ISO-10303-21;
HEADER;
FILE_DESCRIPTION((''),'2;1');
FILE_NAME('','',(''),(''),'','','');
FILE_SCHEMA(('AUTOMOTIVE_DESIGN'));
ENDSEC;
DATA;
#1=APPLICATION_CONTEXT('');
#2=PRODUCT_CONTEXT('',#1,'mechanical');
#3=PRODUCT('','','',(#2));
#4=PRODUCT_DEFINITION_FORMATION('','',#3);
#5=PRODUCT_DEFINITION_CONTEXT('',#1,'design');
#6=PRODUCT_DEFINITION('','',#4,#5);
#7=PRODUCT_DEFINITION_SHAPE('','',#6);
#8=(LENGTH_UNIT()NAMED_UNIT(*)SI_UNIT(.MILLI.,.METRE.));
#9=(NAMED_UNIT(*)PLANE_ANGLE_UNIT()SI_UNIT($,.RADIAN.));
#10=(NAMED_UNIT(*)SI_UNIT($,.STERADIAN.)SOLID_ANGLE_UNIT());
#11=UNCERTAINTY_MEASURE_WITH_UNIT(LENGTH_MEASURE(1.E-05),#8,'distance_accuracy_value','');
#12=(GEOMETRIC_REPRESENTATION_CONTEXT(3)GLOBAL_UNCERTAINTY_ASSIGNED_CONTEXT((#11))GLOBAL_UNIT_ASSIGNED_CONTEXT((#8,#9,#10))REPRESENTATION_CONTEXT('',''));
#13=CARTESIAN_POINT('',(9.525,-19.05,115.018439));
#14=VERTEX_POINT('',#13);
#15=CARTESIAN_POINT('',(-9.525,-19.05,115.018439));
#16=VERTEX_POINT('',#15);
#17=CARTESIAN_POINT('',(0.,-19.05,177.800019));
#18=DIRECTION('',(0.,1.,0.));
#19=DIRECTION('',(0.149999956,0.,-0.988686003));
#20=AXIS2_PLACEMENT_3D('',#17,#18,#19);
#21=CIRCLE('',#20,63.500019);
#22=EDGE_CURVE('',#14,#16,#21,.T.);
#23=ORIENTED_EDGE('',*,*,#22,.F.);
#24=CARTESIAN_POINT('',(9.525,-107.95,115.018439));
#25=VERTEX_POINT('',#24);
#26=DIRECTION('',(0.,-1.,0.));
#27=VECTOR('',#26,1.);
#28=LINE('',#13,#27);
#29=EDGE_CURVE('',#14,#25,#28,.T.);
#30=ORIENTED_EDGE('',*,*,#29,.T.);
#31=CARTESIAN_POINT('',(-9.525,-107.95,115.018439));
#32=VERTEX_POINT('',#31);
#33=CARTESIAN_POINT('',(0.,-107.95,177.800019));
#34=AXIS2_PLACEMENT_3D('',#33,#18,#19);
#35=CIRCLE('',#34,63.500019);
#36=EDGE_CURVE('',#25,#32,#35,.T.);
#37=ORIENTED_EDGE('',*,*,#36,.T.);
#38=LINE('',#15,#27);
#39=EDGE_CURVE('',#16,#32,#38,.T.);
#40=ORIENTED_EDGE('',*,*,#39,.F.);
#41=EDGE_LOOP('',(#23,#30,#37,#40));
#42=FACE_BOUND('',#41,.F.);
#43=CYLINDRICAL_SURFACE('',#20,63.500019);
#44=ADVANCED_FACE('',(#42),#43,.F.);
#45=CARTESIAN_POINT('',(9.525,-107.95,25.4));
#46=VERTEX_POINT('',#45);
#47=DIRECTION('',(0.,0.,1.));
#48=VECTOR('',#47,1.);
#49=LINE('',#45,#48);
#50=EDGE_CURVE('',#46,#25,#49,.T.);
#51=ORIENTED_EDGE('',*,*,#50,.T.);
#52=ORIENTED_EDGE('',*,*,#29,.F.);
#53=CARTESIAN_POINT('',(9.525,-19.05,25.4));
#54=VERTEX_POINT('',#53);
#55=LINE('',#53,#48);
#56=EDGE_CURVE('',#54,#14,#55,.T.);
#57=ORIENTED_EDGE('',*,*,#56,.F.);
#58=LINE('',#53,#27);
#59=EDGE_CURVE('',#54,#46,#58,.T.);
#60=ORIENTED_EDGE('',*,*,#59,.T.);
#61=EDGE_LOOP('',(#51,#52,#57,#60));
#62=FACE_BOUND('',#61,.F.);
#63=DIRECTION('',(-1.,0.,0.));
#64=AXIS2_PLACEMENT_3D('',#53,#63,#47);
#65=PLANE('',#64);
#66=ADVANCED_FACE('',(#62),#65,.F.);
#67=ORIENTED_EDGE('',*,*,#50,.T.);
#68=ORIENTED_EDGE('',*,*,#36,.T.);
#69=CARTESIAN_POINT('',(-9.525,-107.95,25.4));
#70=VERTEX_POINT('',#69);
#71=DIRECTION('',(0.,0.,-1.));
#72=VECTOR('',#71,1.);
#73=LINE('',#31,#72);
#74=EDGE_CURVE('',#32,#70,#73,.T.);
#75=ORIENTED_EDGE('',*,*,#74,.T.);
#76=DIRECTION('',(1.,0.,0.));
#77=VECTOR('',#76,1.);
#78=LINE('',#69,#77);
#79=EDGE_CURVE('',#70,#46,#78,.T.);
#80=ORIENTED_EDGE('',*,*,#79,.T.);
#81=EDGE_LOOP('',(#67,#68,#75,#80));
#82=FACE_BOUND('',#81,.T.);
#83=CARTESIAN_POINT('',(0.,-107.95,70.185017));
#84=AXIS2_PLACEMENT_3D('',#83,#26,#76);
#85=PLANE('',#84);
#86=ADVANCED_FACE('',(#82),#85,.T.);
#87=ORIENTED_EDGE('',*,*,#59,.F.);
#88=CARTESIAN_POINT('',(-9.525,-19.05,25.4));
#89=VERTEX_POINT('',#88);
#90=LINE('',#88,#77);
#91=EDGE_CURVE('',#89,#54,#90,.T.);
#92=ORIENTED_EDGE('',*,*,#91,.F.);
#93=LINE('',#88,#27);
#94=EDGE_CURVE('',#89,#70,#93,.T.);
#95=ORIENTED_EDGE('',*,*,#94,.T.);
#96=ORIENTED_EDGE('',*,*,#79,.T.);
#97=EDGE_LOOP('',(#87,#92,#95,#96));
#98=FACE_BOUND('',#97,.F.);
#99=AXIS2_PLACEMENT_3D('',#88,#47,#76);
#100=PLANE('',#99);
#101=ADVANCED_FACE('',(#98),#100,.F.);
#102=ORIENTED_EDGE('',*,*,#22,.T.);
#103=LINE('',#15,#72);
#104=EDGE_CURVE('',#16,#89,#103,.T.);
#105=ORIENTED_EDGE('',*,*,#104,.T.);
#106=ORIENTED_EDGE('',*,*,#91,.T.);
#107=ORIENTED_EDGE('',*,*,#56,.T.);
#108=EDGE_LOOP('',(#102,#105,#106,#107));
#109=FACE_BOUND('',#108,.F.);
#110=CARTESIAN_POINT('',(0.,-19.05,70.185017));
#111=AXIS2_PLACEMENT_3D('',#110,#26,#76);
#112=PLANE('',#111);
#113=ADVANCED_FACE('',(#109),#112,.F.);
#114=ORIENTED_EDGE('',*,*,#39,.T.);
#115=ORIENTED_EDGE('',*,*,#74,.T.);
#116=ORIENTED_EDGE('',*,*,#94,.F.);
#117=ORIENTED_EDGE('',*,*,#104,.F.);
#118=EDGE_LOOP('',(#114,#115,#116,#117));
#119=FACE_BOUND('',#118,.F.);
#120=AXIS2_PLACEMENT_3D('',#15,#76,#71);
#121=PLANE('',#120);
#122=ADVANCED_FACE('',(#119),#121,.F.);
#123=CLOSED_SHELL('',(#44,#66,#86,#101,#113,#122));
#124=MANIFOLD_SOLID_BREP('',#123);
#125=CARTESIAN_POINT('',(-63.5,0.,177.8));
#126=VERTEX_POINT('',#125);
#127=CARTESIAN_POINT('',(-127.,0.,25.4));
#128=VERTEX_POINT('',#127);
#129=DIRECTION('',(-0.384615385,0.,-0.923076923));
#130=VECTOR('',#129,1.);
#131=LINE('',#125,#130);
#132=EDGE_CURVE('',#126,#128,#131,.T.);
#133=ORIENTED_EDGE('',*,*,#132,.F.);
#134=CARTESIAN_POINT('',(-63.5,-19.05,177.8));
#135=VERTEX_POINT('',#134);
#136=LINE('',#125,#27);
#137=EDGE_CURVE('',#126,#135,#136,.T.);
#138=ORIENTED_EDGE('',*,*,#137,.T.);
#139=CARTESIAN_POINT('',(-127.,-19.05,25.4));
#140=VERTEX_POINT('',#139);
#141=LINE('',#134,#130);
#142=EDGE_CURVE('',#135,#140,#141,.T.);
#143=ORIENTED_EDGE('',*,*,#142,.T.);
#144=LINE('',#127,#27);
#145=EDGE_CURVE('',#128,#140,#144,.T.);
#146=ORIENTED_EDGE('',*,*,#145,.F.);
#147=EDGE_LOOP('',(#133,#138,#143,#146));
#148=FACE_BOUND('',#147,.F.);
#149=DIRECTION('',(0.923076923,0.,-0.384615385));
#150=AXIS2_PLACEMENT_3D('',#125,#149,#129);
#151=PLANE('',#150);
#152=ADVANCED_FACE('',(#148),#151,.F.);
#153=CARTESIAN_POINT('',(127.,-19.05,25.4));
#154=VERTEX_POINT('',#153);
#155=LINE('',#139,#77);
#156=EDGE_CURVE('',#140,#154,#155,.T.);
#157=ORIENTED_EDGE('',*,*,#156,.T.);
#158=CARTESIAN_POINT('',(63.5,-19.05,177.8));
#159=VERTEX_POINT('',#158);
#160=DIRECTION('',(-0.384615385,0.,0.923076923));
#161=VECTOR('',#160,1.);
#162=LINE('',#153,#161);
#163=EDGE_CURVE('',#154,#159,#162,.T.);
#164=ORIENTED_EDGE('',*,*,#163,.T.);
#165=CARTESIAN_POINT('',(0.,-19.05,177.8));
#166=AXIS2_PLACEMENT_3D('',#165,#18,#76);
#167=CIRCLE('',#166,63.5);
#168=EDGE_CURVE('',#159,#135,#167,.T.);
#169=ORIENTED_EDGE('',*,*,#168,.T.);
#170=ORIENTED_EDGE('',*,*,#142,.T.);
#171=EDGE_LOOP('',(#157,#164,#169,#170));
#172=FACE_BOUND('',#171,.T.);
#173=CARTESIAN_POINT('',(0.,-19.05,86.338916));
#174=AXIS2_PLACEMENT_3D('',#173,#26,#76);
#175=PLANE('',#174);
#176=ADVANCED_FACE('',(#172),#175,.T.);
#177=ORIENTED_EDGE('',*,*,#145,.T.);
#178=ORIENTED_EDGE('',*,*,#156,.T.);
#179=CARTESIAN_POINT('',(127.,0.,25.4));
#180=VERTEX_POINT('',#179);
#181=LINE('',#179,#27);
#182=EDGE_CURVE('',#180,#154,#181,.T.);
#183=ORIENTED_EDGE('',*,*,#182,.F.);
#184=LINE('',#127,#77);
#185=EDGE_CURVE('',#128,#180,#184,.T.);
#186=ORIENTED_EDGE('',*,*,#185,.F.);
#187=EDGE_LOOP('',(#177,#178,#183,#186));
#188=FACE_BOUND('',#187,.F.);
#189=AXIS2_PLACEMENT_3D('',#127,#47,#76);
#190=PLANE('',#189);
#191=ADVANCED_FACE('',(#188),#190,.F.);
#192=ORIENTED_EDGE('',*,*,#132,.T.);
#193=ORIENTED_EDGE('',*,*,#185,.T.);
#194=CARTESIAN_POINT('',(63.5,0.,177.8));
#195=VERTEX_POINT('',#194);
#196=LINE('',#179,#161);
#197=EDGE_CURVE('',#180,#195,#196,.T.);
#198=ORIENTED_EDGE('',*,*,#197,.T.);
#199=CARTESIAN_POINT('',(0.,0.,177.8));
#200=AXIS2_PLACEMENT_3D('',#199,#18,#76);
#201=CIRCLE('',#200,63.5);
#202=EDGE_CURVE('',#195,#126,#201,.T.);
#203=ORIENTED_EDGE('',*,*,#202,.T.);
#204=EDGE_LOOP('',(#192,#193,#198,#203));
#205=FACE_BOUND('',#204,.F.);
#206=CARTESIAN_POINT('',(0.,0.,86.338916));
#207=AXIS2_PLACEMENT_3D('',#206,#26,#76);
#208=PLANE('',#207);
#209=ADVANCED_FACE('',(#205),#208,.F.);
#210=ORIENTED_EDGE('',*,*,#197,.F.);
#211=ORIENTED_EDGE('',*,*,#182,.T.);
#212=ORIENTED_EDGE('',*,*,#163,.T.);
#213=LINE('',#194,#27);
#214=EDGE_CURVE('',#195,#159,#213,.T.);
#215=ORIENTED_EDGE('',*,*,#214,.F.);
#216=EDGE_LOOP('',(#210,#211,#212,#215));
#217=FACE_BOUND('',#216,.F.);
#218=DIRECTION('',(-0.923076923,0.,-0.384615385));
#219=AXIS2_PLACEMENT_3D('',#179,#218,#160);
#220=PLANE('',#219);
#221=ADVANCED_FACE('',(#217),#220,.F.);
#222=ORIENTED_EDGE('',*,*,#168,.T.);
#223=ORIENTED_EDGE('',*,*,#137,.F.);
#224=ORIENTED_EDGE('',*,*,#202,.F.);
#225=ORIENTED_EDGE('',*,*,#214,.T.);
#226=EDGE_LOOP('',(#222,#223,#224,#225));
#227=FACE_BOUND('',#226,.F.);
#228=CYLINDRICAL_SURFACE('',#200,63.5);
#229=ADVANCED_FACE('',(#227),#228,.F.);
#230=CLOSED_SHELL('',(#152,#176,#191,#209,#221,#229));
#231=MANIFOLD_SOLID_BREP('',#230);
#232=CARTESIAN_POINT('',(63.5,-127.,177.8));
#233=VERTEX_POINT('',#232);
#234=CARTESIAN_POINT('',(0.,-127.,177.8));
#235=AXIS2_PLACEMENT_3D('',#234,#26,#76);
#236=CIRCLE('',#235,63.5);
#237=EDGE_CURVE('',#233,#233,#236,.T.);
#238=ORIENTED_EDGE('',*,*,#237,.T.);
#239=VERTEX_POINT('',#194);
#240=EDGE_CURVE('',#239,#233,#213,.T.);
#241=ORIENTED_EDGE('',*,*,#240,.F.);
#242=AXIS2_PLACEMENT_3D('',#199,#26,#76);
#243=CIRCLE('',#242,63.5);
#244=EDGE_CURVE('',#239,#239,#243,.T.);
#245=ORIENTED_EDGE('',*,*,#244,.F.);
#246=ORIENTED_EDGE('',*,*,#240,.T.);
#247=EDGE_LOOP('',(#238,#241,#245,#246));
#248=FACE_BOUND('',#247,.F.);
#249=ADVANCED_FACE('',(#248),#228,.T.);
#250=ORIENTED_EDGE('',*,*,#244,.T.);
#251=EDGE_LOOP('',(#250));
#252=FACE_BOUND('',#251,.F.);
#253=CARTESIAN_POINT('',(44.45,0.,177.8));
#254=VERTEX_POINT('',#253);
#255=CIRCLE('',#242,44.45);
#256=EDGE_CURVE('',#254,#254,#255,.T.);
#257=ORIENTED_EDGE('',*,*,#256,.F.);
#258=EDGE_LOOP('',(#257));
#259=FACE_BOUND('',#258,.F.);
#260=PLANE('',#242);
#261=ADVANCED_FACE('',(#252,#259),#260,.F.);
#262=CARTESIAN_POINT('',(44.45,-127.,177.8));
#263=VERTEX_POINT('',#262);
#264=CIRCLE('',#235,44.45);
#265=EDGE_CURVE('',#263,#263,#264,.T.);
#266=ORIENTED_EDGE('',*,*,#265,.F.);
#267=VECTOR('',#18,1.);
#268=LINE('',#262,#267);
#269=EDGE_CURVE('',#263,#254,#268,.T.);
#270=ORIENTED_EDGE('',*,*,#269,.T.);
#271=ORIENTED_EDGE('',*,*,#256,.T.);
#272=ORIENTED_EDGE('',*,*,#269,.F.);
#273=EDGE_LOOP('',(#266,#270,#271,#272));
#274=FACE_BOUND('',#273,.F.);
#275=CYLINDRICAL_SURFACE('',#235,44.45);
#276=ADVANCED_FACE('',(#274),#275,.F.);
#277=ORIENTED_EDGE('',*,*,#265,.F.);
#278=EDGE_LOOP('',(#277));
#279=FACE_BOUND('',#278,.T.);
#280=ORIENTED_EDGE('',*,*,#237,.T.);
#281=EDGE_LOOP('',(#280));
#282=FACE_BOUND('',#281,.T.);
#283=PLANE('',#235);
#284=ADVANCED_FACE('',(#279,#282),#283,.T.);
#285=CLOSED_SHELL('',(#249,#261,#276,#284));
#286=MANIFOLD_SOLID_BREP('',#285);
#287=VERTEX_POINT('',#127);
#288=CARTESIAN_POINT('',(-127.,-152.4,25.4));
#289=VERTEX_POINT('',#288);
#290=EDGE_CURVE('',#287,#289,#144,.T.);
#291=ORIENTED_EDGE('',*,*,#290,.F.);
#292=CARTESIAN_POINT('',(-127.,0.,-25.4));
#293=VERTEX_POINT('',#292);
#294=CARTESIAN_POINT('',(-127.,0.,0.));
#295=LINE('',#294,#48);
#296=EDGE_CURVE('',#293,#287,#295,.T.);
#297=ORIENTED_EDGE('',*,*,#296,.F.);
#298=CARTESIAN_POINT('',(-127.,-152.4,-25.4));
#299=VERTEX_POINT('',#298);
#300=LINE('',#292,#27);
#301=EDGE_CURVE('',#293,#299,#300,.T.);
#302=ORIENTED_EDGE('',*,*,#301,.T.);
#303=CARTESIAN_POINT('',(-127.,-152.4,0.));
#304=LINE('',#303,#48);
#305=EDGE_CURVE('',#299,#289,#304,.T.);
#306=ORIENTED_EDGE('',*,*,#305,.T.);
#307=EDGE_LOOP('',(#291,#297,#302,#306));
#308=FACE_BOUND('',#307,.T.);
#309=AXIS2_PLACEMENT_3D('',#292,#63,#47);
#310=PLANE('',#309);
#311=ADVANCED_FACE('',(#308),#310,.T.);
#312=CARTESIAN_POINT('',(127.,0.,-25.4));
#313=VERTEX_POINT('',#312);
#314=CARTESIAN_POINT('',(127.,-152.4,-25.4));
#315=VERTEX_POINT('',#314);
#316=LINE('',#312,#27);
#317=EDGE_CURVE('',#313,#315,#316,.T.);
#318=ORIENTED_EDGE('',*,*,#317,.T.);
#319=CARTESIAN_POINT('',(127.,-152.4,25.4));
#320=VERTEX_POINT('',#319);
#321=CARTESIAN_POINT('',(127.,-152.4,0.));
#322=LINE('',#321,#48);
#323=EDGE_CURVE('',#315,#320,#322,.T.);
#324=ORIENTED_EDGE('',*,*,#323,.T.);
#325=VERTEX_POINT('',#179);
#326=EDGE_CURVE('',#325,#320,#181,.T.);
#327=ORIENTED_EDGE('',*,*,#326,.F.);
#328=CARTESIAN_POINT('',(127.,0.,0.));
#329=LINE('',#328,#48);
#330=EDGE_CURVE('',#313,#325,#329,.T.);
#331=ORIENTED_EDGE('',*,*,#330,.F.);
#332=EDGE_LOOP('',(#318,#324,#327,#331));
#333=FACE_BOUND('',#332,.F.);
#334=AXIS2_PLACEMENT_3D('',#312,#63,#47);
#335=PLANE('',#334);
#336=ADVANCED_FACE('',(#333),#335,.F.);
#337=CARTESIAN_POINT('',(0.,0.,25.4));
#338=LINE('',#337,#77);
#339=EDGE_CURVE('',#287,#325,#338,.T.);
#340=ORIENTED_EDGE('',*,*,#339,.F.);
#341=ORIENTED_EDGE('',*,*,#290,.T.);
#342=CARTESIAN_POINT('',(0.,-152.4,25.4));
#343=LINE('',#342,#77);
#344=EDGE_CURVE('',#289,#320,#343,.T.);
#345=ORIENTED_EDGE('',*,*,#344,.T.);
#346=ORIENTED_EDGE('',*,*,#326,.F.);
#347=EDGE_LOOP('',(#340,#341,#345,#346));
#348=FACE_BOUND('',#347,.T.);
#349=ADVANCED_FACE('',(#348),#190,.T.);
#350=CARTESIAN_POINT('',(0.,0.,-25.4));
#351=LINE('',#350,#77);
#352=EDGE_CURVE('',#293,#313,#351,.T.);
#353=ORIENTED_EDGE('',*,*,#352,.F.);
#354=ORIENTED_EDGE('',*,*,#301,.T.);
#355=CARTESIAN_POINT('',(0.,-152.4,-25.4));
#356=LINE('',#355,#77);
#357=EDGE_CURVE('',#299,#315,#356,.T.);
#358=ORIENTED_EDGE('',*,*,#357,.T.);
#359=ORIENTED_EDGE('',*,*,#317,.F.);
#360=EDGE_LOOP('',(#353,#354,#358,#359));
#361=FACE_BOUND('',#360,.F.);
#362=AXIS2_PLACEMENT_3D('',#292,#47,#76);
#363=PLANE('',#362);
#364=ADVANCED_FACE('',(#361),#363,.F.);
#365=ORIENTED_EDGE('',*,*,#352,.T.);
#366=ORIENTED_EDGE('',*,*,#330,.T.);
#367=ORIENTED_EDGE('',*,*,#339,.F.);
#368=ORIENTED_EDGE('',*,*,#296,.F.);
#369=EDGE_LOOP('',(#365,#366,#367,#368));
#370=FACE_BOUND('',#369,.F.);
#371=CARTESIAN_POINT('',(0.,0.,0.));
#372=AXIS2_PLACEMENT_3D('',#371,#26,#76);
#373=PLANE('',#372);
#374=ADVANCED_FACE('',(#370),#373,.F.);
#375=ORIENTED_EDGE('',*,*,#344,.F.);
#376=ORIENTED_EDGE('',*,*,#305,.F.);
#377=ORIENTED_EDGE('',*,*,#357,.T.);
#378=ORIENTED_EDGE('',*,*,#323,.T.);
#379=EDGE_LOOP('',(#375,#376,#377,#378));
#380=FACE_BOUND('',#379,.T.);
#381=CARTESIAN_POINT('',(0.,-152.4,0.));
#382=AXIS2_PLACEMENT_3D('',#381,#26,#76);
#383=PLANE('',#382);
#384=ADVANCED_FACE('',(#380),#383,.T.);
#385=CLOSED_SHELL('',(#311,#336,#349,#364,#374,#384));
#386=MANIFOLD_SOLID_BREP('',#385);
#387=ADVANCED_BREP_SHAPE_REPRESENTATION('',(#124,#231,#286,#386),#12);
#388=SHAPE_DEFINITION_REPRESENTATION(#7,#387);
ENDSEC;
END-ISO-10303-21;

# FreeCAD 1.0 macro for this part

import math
import FreeCAD as App
import Part
import Sketcher

V = App.Vector
Q = App.Units.Quantity

doc = App.newDocument("Part")
body = doc.addObject("PartDesign::Body", "Body")

# Sketch on XZ plane
sketch1 = doc.addObject("Sketcher::SketchObject", "Sketch")
body.addObject(sketch1)
sketch1.AttachmentSupport = (doc.XZ_Plane, [""])
sketch1.MapMode = "FlatFace"
sketch1.addGeometry(Part.LineSegment(V(-127, 25, 0), V(-127, -25, 0)), False)
sketch1.addGeometry(Part.LineSegment(V(-127, -25, 0), V(127, -25, 0)), False)
sketch1.addGeometry(Part.LineSegment(V(127, -25, 0), V(127, 25, 0)), False)
sketch1.addGeometry(Part.LineSegment(V(127, 25, 0), V(-127, 25, 0)), False)
sketch1.addConstraint(Sketcher.Constraint("Coincident", 0, 2, 1, 1))
sketch1.addConstraint(Sketcher.Constraint("Coincident", 1, 2, 2, 1))
sketch1.addConstraint(Sketcher.Constraint("Coincident", 2, 2, 3, 1))
sketch1.addConstraint(Sketcher.Constraint("Coincident", 3, 2, 0, 1))
sketch1.addConstraint(Sketcher.Constraint("Vertical", 0))
sketch1.addConstraint(Sketcher.Constraint("Horizontal", 1))
sketch1.addConstraint(Sketcher.Constraint("Vertical", 2))
sketch1.addConstraint(Sketcher.Constraint("Horizontal", 3))
sketch1.addConstraint(Sketcher.Constraint("Symmetric", 0, 2, 2, 2, -1, 1))
sketch1.addConstraint(Sketcher.Constraint("DistanceX", 1, 1, 1, 2, Q("10 in")))
sketch1.addConstraint(Sketcher.Constraint("DistanceY", 0, 2, 0, 1, Q("2 in")))
pad1 = doc.addObject("PartDesign::Pad", "Pad")
body.addObject(pad1)
pad1.Profile = sketch1
pad1.Length = Q("6 in")
body2 = doc.addObject("PartDesign::Body", "Body001")

# Sketch on XZ plane
sketch2 = doc.addObject("Sketcher::SketchObject", "Sketch001")
body2.addObject(sketch2)
sketch2.AttachmentSupport = (doc.getObject("XZ_Plane001"), [""])
sketch2.MapMode = "FlatFace"
sketch2.addGeometry(Part.Circle(V(0, 178, 0), V(0, 0, 1), 64), False)
sketch2.addConstraint(Sketcher.Constraint("PointOnObject", 0, 3, -2))
sketch2.addConstraint(Sketcher.Constraint("Diameter", 0, Q("5 in")))
sketch2.addConstraint(Sketcher.Constraint("DistanceY", -1, 1, 0, 3, Q("7 in")))
pad2 = doc.addObject("PartDesign::Pad", "Pad001")
body2.addObject(pad2)
pad2.Profile = sketch2
pad2.Length = Q("5 in")

# Sketch on XZ plane
sketch3 = doc.addObject("Sketcher::SketchObject", "Sketch002")
body2.addObject(sketch3)
sketch3.AttachmentSupport = (doc.getObject("XZ_Plane001"), [""])
sketch3.MapMode = "FlatFace"
sketch3.AttachmentOffset = App.Placement(V(0, 0, 5 * 25.4), App.Rotation())
sketch3.addGeometry(Part.Circle(V(0, 178, 0), V(0, 0, 1), 44), False)
sketch3.addConstraint(Sketcher.Constraint("PointOnObject", 0, 3, -2))
sketch3.addConstraint(Sketcher.Constraint("Diameter", 0, Q("3.5 in")))
sketch3.addConstraint(Sketcher.Constraint("DistanceY", -1, 1, 0, 3, Q("7 in")))
pocket1 = doc.addObject("PartDesign::Pocket", "Pocket")
body2.addObject(pocket1)
pocket1.Profile = sketch3
pocket1.Type = "ThroughAll"
body3 = doc.addObject("PartDesign::Body", "Body002")

# Sketch on XZ plane
sketch4 = doc.addObject("Sketcher::SketchObject", "Sketch003")
body3.addObject(sketch4)
sketch4.AttachmentSupport = (doc.getObject("XZ_Plane002"), [""])
sketch4.MapMode = "FlatFace"
sketch4.addGeometry(Part.LineSegment(V(-127, 25, 0), V(127, 25, 0)), False)
sketch4.addGeometry(Part.LineSegment(V(127, 25, 0), V(64, 178, 0)), False)
sketch4.addGeometry(Part.ArcOfCircle(Part.Circle(V(0, 178, 0), V(0, 0, 1), 64), math.radians(180), math.radians(360)), False)
sketch4.addGeometry(Part.LineSegment(V(-64, 178, 0), V(-127, 25, 0)), False)
sketch4.addConstraint(Sketcher.Constraint("Coincident", 0, 2, 1, 1))
sketch4.addConstraint(Sketcher.Constraint("Coincident", 1, 2, 2, 2))
sketch4.addConstraint(Sketcher.Constraint("Coincident", 2, 1, 3, 1))
sketch4.addConstraint(Sketcher.Constraint("Coincident", 3, 2, 0, 1))
sketch4.addConstraint(Sketcher.Constraint("Horizontal", 0))
sketch4.addConstraint(Sketcher.Constraint("Symmetric", 1, 2, 2, 1, -2))
sketch4.addConstraint(Sketcher.Constraint("Horizontal", 2, 3, 1, 2))
sketch4.addConstraint(Sketcher.Constraint("Equal", 1, 3))
sketch4.addConstraint(Sketcher.Constraint("Radius", 2, Q("2.5 in")))
sketch4.addConstraint(Sketcher.Constraint("DistanceX", 0, 1, 0, 2, Q("10 in")))
sketch4.addConstraint(Sketcher.Constraint("DistanceY", -1, 1, 2, 3, Q("7 in")))
sketch4.addConstraint(Sketcher.Constraint("DistanceY", -1, 1, 0, 2, Q("1 in")))
pad3 = doc.addObject("PartDesign::Pad", "Pad002")
body3.addObject(pad3)
pad3.Profile = sketch4
pad3.Length = Q("0.75 in")
body4 = doc.addObject("PartDesign::Body", "Body003")

# Sketch on XZ plane
sketch5 = doc.addObject("Sketcher::SketchObject", "Sketch004")
body4.addObject(sketch5)
sketch5.AttachmentSupport = (doc.getObject("XZ_Plane003"), [""])
sketch5.MapMode = "FlatFace"
sketch5.AttachmentOffset = App.Placement(V(0, 0, 0.75 * 25.4), App.Rotation())
sketch5.addGeometry(Part.ArcOfCircle(Part.Circle(V(0, 178, 0), V(0, 0, 1), 64), math.radians(-98.63), math.radians(-81.37)), False)
sketch5.addGeometry(Part.LineSegment(V(-10, 115, 0), V(-10, 25, 0)), False)
sketch5.addGeometry(Part.LineSegment(V(-10, 25, 0), V(10, 25, 0)), False)
sketch5.addGeometry(Part.LineSegment(V(10, 25, 0), V(10, 115, 0)), False)
sketch5.addConstraint(Sketcher.Constraint("Coincident", 0, 1, 1, 1))
sketch5.addConstraint(Sketcher.Constraint("Coincident", 1, 2, 2, 1))
sketch5.addConstraint(Sketcher.Constraint("Coincident", 2, 2, 3, 1))
sketch5.addConstraint(Sketcher.Constraint("Coincident", 3, 2, 0, 2))
sketch5.addConstraint(Sketcher.Constraint("Vertical", 1))
sketch5.addConstraint(Sketcher.Constraint("Horizontal", 2))
sketch5.addConstraint(Sketcher.Constraint("Vertical", 3))
sketch5.addConstraint(Sketcher.Constraint("Symmetric", 0, 1, 3, 2, -2))
sketch5.addConstraint(Sketcher.Constraint("DistanceY", -1, 1, 1, 2, Q("1 in")))
sketch5.addConstraint(Sketcher.Constraint("DistanceX", 2, 1, 2, 2, Q("0.75 in")))
sketch5.addConstraint(Sketcher.Constraint("Radius", 0, 63.500019))
sketch5.addConstraint(Sketcher.Constraint("DistanceY", 1, 2, 1, 1, 89.618439))
pad4 = doc.addObject("PartDesign::Pad", "Pad003")
body4.addObject(pad4)
pad4.Profile = sketch5
pad4.Length = Q("3.5 in")

doc.recompute()
